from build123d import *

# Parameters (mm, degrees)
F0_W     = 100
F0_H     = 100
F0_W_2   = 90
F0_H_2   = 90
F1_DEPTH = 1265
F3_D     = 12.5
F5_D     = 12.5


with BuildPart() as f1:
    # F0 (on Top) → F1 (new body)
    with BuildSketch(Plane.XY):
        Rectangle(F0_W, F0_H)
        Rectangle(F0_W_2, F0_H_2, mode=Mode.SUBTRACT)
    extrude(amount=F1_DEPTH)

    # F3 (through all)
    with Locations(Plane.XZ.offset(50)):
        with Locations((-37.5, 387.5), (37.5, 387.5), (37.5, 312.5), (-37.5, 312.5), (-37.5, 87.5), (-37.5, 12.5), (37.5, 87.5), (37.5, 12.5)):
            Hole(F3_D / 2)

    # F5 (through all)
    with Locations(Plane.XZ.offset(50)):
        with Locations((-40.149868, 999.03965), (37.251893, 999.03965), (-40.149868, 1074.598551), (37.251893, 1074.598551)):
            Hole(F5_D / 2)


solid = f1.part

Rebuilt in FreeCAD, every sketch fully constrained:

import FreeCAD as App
import Part
import Sketcher

doc = App.newDocument("Part")
params = doc.addObject("Spreadsheet::Sheet", "Params")
for row, (alias, value) in enumerate([
    ("sketch1_width", "100 mm"),
    ("sketch1_width2", "90 mm"),
    ("pad1_length", "1265 mm"),
    ("sketch2_diameter", "12.5 mm"),
    ("hole_diameter", "12.5 mm"),
    ("sketch3_diameter", "12.5 mm"),
    ("hole2_diameter", "12.5 mm"),
], start=1):
    params.set(f"A{row}", alias)
    params.set(f"B{row}", "=" + value)
    params.setAlias(f"B{row}", alias)

body = doc.addObject("PartDesign::Body", "Body")

# Sketch on XY plane
sketch1 = body.newObject("Sketcher::SketchObject", "Sketch")
sketch1.AttachmentSupport = (doc.getObject("XY_Plane"), [""])
sketch1.MapMode = "FlatFace"
sketch1.addGeometry(Part.LineSegment(App.Vector(-50, 50, 0), App.Vector(-50, -50, 0)), False)
sketch1.addGeometry(Part.LineSegment(App.Vector(-50, -50, 0), App.Vector(50, -50, 0)), False)
sketch1.addGeometry(Part.LineSegment(App.Vector(50, -50, 0), App.Vector(50, 50, 0)), False)
sketch1.addGeometry(Part.LineSegment(App.Vector(50, 50, 0), App.Vector(-50, 50, 0)), False)
sketch1.addGeometry(Part.LineSegment(App.Vector(45, -45, 0), App.Vector(-45, -45, 0)), False)
sketch1.addGeometry(Part.LineSegment(App.Vector(-45, -45, 0), App.Vector(-45, 45, 0)), False)
sketch1.addGeometry(Part.LineSegment(App.Vector(-45, 45, 0), App.Vector(45, 45, 0)), False)
sketch1.addGeometry(Part.LineSegment(App.Vector(45, 45, 0), App.Vector(45, -45, 0)), False)
sketch1.addConstraint(Sketcher.Constraint("Coincident", 0, 2, 1, 1))
sketch1.addConstraint(Sketcher.Constraint("Coincident", 1, 2, 2, 1))
sketch1.addConstraint(Sketcher.Constraint("Coincident", 2, 2, 3, 1))
sketch1.addConstraint(Sketcher.Constraint("Coincident", 3, 2, 0, 1))
sketch1.addConstraint(Sketcher.Constraint("Coincident", 4, 2, 5, 1))
sketch1.addConstraint(Sketcher.Constraint("Coincident", 5, 2, 6, 1))
sketch1.addConstraint(Sketcher.Constraint("Coincident", 6, 2, 7, 1))
sketch1.addConstraint(Sketcher.Constraint("Coincident", 7, 2, 4, 1))
sketch1.addConstraint(Sketcher.Constraint("Vertical", 0))
sketch1.addConstraint(Sketcher.Constraint("Horizontal", 1))
sketch1.addConstraint(Sketcher.Constraint("Vertical", 2))
sketch1.addConstraint(Sketcher.Constraint("Horizontal", 3))
sketch1.addConstraint(Sketcher.Constraint("Horizontal", 4))
sketch1.addConstraint(Sketcher.Constraint("Vertical", 5))
sketch1.addConstraint(Sketcher.Constraint("Horizontal", 6))
sketch1.addConstraint(Sketcher.Constraint("Vertical", 7))
sketch1.addConstraint(Sketcher.Constraint("Symmetric", 0, 2, 2, 2, -1, 1))
sketch1.addConstraint(Sketcher.Constraint("Symmetric", 4, 2, 6, 2, -1, 1))
sketch1.addConstraint(Sketcher.Constraint("Equal", 3, 0))
sketch1.addConstraint(Sketcher.Constraint("Equal", 6, 5))
sketch1.addConstraint(Sketcher.Constraint("DistanceX", 1, 1, 1, 2, 100.0))
sketch1.addConstraint(Sketcher.Constraint("DistanceX", 4, 2, 4, 1, 90.0))
sketch1.setExpression("Constraints[20]", "Params.sketch1_width")
sketch1.setExpression("Constraints[21]", "Params.sketch1_width2")
pad1 = body.newObject("PartDesign::Pad", "Pad")
pad1.Profile = sketch1
pad1.setExpression("Length", "Params.pad1_length")

# Sketch on XZ plane
sketch2 = body.newObject("Sketcher::SketchObject", "Sketch001")
sketch2.AttachmentSupport = (doc.getObject("XZ_Plane"), [""])
sketch2.MapMode = "FlatFace"
sketch2.AttachmentOffset = App.Placement(App.Vector(0, 0, 50), App.Rotation())
sketch2.addGeometry(Part.Circle(App.Vector(-38, 388, 0), App.Vector(0, 0, 1), 6), False)
sketch2.addGeometry(Part.Circle(App.Vector(38, 388, 0), App.Vector(0, 0, 1), 6), False)
sketch2.addGeometry(Part.Circle(App.Vector(38, 312, 0), App.Vector(0, 0, 1), 6), False)
sketch2.addGeometry(Part.Circle(App.Vector(-38, 312, 0), App.Vector(0, 0, 1), 6), False)
sketch2.addGeometry(Part.Circle(App.Vector(-38, 88, 0), App.Vector(0, 0, 1), 6), False)
sketch2.addGeometry(Part.Circle(App.Vector(-38, 12, 0), App.Vector(0, 0, 1), 6), False)
sketch2.addGeometry(Part.Circle(App.Vector(38, 88, 0), App.Vector(0, 0, 1), 6), False)
sketch2.addGeometry(Part.Circle(App.Vector(38, 12, 0), App.Vector(0, 0, 1), 6), False)
sketch2.addConstraint(Sketcher.Constraint("Equal", 0, 1))
sketch2.addConstraint(Sketcher.Constraint("Equal", 1, 2))
sketch2.addConstraint(Sketcher.Constraint("Equal", 2, 3))
sketch2.addConstraint(Sketcher.Constraint("Equal", 3, 4))
sketch2.addConstraint(Sketcher.Constraint("Equal", 4, 5))
sketch2.addConstraint(Sketcher.Constraint("Equal", 5, 6))
sketch2.addConstraint(Sketcher.Constraint("Equal", 6, 7))
sketch2.addConstraint(Sketcher.Constraint("Symmetric", 0, 3, 1, 3, -2))
sketch2.addConstraint(Sketcher.Constraint("Symmetric", 2, 3, 3, 3, -2))
sketch2.addConstraint(Sketcher.Constraint("Symmetric", 4, 3, 6, 3, -2))
sketch2.addConstraint(Sketcher.Constraint("Symmetric", 5, 3, 7, 3, -2))
sketch2.addConstraint(Sketcher.Constraint("Vertical", 1, 3, 2, 3))
sketch2.addConstraint(Sketcher.Constraint("Vertical", 3, 3, 4, 3))
sketch2.addConstraint(Sketcher.Constraint("Vertical", 4, 3, 5, 3))
sketch2.addConstraint(Sketcher.Constraint("Diameter", 0, 12.5))
sketch2.addConstraint(Sketcher.Constraint("DistanceX", 0, 3, 1, 3, 75.0))
sketch2.addConstraint(Sketcher.Constraint("DistanceY", 2, 3, 1, 3, 75.0))
sketch2.addConstraint(Sketcher.Constraint("DistanceY", 4, 3, 3, 3, 225.0))
sketch2.addConstraint(Sketcher.Constraint("DistanceY", 5, 3, 4, 3, 75.0))
sketch2.addConstraint(Sketcher.Constraint("DistanceY", -1, 1, 0, 3, 387.5))
sketch2.setExpression("Constraints[14]", "Params.sketch2_diameter")
doc.recompute()
hole = body.newObject("PartDesign::Hole", "Hole")
hole.Profile = sketch2
hole.ThreadType = "None"
hole.setExpression("Diameter", "Params.hole_diameter")
hole.DepthType = "ThroughAll"

# Sketch on XZ plane
sketch3 = body.newObject("Sketcher::SketchObject", "Sketch002")
sketch3.AttachmentSupport = (doc.getObject("XZ_Plane"), [""])
sketch3.MapMode = "FlatFace"
sketch3.AttachmentOffset = App.Placement(App.Vector(0, 0, 50), App.Rotation())
sketch3.addGeometry(Part.Circle(App.Vector(-40, 999, 0), App.Vector(0, 0, 1), 6), False)
sketch3.addGeometry(Part.Circle(App.Vector(37, 999, 0), App.Vector(0, 0, 1), 6), False)
sketch3.addGeometry(Part.Circle(App.Vector(-40, 1075, 0), App.Vector(0, 0, 1), 6), False)
sketch3.addGeometry(Part.Circle(App.Vector(37, 1075, 0), App.Vector(0, 0, 1), 6), False)
sketch3.addConstraint(Sketcher.Constraint("Equal", 0, 1))
sketch3.addConstraint(Sketcher.Constraint("Equal", 1, 2))
sketch3.addConstraint(Sketcher.Constraint("Equal", 2, 3))
sketch3.addConstraint(Sketcher.Constraint("Horizontal", 0, 3, 1, 3))
sketch3.addConstraint(Sketcher.Constraint("Horizontal", 2, 3, 3, 3))
sketch3.addConstraint(Sketcher.Constraint("Vertical", 0, 3, 2, 3))
sketch3.addConstraint(Sketcher.Constraint("Vertical", 1, 3, 3, 3))
sketch3.addConstraint(Sketcher.Constraint("Diameter", 0, 12.5))
sketch3.addConstraint(Sketcher.Constraint("DistanceY", 0, 3, 2, 3, 75.558901))
sketch3.addConstraint(Sketcher.Constraint("DistanceY", -1, 1, 0, 3, 999.03965))
sketch3.addConstraint(Sketcher.Constraint("DistanceX", 0, 3, 1, 3, 77.401761))
sketch3.addConstraint(Sketcher.Constraint("DistanceX", 0, 3, -1, 1, 40.149868))
sketch3.setExpression("Constraints[7]", "Params.sketch3_diameter")
doc.recompute()
hole2 = body.newObject("PartDesign::Hole", "Hole001")
hole2.Profile = sketch3
hole2.ThreadType = "None"
hole2.setExpression("Diameter", "Params.hole2_diameter")
hole2.DepthType = "ThroughAll"

doc.recompute()
